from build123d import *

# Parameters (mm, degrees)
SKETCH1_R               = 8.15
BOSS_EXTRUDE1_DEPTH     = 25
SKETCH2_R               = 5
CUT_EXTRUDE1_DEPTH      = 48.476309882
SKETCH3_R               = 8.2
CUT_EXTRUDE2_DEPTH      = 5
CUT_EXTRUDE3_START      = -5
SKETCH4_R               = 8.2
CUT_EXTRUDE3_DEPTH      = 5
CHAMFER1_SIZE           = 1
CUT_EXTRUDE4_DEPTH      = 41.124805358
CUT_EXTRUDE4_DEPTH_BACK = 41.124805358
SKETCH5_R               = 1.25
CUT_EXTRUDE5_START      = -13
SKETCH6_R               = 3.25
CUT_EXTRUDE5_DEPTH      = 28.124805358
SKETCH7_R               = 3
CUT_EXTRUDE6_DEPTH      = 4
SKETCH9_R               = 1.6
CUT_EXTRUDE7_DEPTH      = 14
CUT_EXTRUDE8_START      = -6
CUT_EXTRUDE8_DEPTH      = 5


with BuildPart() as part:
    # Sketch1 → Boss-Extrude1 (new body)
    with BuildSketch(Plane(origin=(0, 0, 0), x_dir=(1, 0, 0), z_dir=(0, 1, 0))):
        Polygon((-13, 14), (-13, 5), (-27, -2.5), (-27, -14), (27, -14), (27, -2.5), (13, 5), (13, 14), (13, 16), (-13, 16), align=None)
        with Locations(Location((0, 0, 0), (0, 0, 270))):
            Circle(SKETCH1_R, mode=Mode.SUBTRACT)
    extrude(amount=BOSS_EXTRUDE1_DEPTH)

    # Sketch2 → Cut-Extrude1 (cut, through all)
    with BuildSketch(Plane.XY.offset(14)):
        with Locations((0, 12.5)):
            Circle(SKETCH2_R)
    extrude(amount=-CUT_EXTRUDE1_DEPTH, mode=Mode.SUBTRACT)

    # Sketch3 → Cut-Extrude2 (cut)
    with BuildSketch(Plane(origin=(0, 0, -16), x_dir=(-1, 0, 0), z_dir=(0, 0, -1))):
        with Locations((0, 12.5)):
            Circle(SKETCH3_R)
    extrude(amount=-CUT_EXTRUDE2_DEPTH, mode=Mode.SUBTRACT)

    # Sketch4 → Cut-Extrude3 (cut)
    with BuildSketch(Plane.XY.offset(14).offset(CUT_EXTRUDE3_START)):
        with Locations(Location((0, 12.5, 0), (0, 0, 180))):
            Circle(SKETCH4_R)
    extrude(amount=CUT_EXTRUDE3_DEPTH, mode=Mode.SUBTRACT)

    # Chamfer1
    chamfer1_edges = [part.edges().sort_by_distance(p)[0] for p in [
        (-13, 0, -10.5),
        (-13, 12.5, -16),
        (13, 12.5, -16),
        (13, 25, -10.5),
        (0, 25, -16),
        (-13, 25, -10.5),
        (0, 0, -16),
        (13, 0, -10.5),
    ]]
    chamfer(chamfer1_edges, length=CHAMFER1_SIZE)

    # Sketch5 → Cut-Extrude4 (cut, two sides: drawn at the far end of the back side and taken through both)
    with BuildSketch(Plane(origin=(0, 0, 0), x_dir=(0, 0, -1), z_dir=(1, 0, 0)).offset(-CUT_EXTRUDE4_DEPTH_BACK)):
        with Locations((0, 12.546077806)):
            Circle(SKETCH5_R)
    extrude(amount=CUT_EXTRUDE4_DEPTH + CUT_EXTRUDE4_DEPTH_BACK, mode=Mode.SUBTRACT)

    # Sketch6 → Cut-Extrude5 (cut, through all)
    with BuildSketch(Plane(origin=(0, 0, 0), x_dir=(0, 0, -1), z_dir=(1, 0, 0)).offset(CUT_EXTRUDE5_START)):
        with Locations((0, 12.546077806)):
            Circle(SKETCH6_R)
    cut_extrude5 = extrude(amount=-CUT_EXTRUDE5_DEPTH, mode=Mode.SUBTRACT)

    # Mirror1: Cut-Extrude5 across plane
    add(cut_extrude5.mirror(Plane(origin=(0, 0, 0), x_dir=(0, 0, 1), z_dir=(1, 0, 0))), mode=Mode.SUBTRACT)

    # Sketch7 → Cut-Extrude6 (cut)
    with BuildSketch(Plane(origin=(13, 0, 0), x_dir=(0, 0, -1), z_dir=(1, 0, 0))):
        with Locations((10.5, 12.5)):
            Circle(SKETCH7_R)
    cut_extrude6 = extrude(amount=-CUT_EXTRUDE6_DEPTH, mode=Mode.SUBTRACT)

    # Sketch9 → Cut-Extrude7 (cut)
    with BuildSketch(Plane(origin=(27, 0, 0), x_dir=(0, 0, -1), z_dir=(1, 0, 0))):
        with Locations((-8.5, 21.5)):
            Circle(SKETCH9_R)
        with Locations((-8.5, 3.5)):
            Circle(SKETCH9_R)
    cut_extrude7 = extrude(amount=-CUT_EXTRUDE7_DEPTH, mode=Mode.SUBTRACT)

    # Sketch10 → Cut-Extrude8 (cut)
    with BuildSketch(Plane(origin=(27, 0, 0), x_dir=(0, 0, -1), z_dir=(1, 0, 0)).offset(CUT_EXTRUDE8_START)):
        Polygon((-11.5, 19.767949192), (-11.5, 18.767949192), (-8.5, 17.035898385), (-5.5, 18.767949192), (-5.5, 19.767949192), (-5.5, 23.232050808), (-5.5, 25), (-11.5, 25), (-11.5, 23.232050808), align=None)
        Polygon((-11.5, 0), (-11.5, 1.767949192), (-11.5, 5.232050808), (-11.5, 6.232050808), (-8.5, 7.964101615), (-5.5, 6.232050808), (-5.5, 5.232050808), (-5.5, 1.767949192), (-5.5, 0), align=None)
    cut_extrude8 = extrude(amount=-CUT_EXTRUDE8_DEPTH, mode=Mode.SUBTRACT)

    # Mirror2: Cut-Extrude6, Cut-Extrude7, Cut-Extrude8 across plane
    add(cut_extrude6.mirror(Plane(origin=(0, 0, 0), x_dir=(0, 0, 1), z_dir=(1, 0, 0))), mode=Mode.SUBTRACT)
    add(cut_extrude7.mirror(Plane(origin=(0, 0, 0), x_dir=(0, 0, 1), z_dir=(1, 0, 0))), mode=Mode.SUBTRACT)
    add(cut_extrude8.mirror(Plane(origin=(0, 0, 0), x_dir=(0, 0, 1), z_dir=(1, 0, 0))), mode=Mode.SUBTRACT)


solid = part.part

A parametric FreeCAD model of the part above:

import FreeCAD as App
import Part
import Sketcher
from FreeCAD import Vector
Q = App.Units.Quantity


def edges_at(feature, points):
    """Names of the edges that pass closest to the given points."""
    edges = feature.Shape.Edges
    near = lambda p: min(range(len(edges)), key=lambda i: edges[i].distToShape(Part.Vertex(*p))[0])
    return sorted({f"Edge{near(p) + 1}" for p in points})

doc = App.newDocument("Part")
body = doc.addObject("PartDesign::Body", "Body")

sketch1 = body.newObject("Sketcher::SketchObject", "Sketch")
sketch1.AttachmentSupport = (doc.getObject("XZ_Plane"), [""])
sketch1.MapMode = "FlatFace"
sketch1.addGeometry(Part.LineSegment(Vector(-13, -5, 0), Vector(-27, 2, 0)), False)
sketch1.addGeometry(Part.LineSegment(Vector(-27, 2, 0), Vector(-27, 14, 0)), False)
sketch1.addGeometry(Part.LineSegment(Vector(-27, 14, 0), Vector(27, 14, 0)), False)
sketch1.addGeometry(Part.LineSegment(Vector(27, 14, 0), Vector(27, 2, 0)), False)
sketch1.addGeometry(Part.LineSegment(Vector(27, 2, 0), Vector(13, -5, 0)), False)
sketch1.addGeometry(Part.LineSegment(Vector(13, -5, 0), Vector(13, -16, 0)), False)
sketch1.addGeometry(Part.LineSegment(Vector(13, -16, 0), Vector(-13, -16, 0)), False)
sketch1.addGeometry(Part.LineSegment(Vector(-13, -16, 0), Vector(-13, -5, 0)), False)
sketch1.addGeometry(Part.Circle(Vector(0, 0, 0), Vector(0, 0, 1), 8), False)
sketch1.addConstraint(Sketcher.Constraint("Coincident", 0, 2, 1, 1))
sketch1.addConstraint(Sketcher.Constraint("Coincident", 1, 2, 2, 1))
sketch1.addConstraint(Sketcher.Constraint("Coincident", 2, 2, 3, 1))
sketch1.addConstraint(Sketcher.Constraint("Coincident", 3, 2, 4, 1))
sketch1.addConstraint(Sketcher.Constraint("Coincident", 4, 2, 5, 1))
sketch1.addConstraint(Sketcher.Constraint("Coincident", 5, 2, 6, 1))
sketch1.addConstraint(Sketcher.Constraint("Coincident", 6, 2, 7, 1))
sketch1.addConstraint(Sketcher.Constraint("Coincident", 7, 2, 0, 1))
sketch1.addConstraint(Sketcher.Constraint("Vertical", 1))
sketch1.addConstraint(Sketcher.Constraint("Horizontal", 2))
sketch1.addConstraint(Sketcher.Constraint("Vertical", 3))
sketch1.addConstraint(Sketcher.Constraint("Vertical", 5))
sketch1.addConstraint(Sketcher.Constraint("Horizontal", 6))
sketch1.addConstraint(Sketcher.Constraint("Vertical", 7))
sketch1.addConstraint(Sketcher.Constraint("Coincident", 8, 3, -1, 1))
sketch1.addConstraint(Sketcher.Constraint("Symmetric", 0, 2, 3, 2, -2))
sketch1.addConstraint(Sketcher.Constraint("Symmetric", 4, 2, 7, 2, -2))
sketch1.addConstraint(Sketcher.Constraint("Diameter", 8, 16.3))
sketch1.addConstraint(Sketcher.Constraint("DistanceX", 2, 1, 2, 2, 54.0))
sketch1.addConstraint(Sketcher.Constraint("DistanceX", 6, 2, 6, 1, 26.0))
sketch1.addConstraint(Sketcher.Constraint("DistanceY", 5, 2, 5, 1, 11.0))
sketch1.addConstraint(Sketcher.Constraint("DistanceY", 1, 1, 1, 2, 11.5))
sketch1.addConstraint(Sketcher.Constraint("DistanceY", -1, 1, 1, 2, 14.0))
sketch1.addConstraint(Sketcher.Constraint("DistanceY", 4, 2, -1, 1, 5.0))
pad1 = body.newObject("PartDesign::Pad", "Pad")
pad1.Profile = sketch1
pad1.Length = 25
pad1.Reversed = True

sketch2 = body.newObject("Sketcher::SketchObject", "Sketch001")
sketch2.AttachmentSupport = (doc.getObject("XY_Plane"), [""])
sketch2.MapMode = "FlatFace"
sketch2.AttachmentOffset = App.Placement(Vector(0, 0, 14), App.Rotation())
sketch2.addGeometry(Part.Circle(Vector(0, 12, 0), Vector(0, 0, 1), 5), False)
sketch2.addConstraint(Sketcher.Constraint("PointOnObject", 0, 3, -2))
sketch2.addConstraint(Sketcher.Constraint("Diameter", 0, 10.0))
sketch2.addConstraint(Sketcher.Constraint("DistanceY", -1, 1, 0, 3, 12.5))
pocket1 = body.newObject("PartDesign::Pocket", "Pocket")
pocket1.Profile = sketch2
pocket1.Type = "ThroughAll"

sketch3 = body.newObject("Sketcher::SketchObject", "Sketch002")
sketch3.AttachmentSupport = (doc.getObject("XY_Plane"), [""])
sketch3.MapMode = "FlatFace"
sketch3.AttachmentOffset = App.Placement(Vector(0, 0, -16), App.Rotation())
sketch3.addGeometry(Part.Circle(Vector(0, 12, 0), Vector(0, 0, 1), 8), False)
sketch3.addConstraint(Sketcher.Constraint("PointOnObject", 0, 3, -2))
sketch3.addConstraint(Sketcher.Constraint("Diameter", 0, 16.4))
sketch3.addConstraint(Sketcher.Constraint("DistanceY", -1, 1, 0, 3, 12.5))
pocket2 = body.newObject("PartDesign::Pocket", "Pocket001")
pocket2.Profile = sketch3
pocket2.Length = 5
pocket2.Reversed = True

sketch4 = body.newObject("Sketcher::SketchObject", "Sketch003")
sketch4.AttachmentSupport = (doc.getObject("XY_Plane"), [""])
sketch4.MapMode = "FlatFace"
sketch4.AttachmentOffset = App.Placement(Vector(0, 0, 9), App.Rotation())
sketch4.addGeometry(Part.Circle(Vector(0, 12, 0), Vector(0, 0, 1), 8), False)
sketch4.addConstraint(Sketcher.Constraint("PointOnObject", 0, 3, -2))
sketch4.addConstraint(Sketcher.Constraint("Diameter", 0, 16.4))
sketch4.addConstraint(Sketcher.Constraint("DistanceY", -1, 1, 0, 3, 12.5))
pocket3 = body.newObject("PartDesign::Pocket", "Pocket002")
pocket3.Profile = sketch4
pocket3.Length = 5
pocket3.Reversed = True
doc.recompute()

chamfer = body.newObject("PartDesign::Chamfer", "Chamfer")
chamfer.Base = (pocket3, edges_at(pocket3, [
    (-13, 0, -10.5),
    (-13, 12.5, -16),
    (13, 12.5, -16),
    (13, 25, -10.5),
    (0, 25, -16),
    (-13, 25, -10.5),
    (0, 0, -16),
    (13, 0, -10.5),
]))
chamfer.Size = 1

sketch5 = body.newObject("Sketcher::SketchObject", "Sketch004")
sketch5.AttachmentSupport = (doc.getObject("YZ_Plane"), [""])
sketch5.MapMode = "FlatFace"
sketch5.addGeometry(Part.Circle(Vector(12.5, 0, 0), Vector(0, 0, 1), 1.2), False)
sketch5.addConstraint(Sketcher.Constraint("PointOnObject", 0, 3, -1))
sketch5.addConstraint(Sketcher.Constraint("Diameter", 0, 2.5))
sketch5.addConstraint(Sketcher.Constraint("DistanceX", -1, 1, 0, 3, 12.546078))
pocket4 = body.newObject("PartDesign::Pocket", "Pocket003")
pocket4.Profile = sketch5
pocket4.Type = "ThroughAll"
pocket4.Midplane = True

sketch6 = body.newObject("Sketcher::SketchObject", "Sketch005")
sketch6.AttachmentSupport = (doc.getObject("YZ_Plane"), [""])
sketch6.MapMode = "FlatFace"
sketch6.AttachmentOffset = App.Placement(Vector(0, 0, -13), App.Rotation())
sketch6.addGeometry(Part.Circle(Vector(12.5, 0, 0), Vector(0, 0, 1), 3.2), False)
sketch6.addConstraint(Sketcher.Constraint("PointOnObject", 0, 3, -1))
sketch6.addConstraint(Sketcher.Constraint("Diameter", 0, 6.5))
sketch6.addConstraint(Sketcher.Constraint("DistanceX", -1, 1, 0, 3, 12.546078))
pocket5 = body.newObject("PartDesign::Pocket", "Pocket004")
pocket5.Profile = sketch6
pocket5.Type = "ThroughAll"
doc.recompute()

mirrored = body.newObject("PartDesign::Mirrored", "Mirrored")
mirrored.Originals = [pocket5]
mirrored.MirrorPlane = (doc.getObject("YZ_Plane"), [""])
body.Tip = mirrored

sketch7 = body.newObject("Sketcher::SketchObject", "Sketch006")
sketch7.AttachmentSupport = (doc.getObject("YZ_Plane"), [""])
sketch7.MapMode = "FlatFace"
sketch7.AttachmentOffset = App.Placement(Vector(0, 0, 13), App.Rotation())
sketch7.addGeometry(Part.Circle(Vector(12.5, -10.5, 0), Vector(0, 0, 1), 3), False)
sketch7.addConstraint(Sketcher.Constraint("Diameter", 0, 6.0))
sketch7.addConstraint(Sketcher.Constraint("DistanceX", -1, 1, 0, 3, 12.5))
sketch7.addConstraint(Sketcher.Constraint("DistanceY", 0, 3, -1, 1, 10.5))
pocket6 = body.newObject("PartDesign::Pocket", "Pocket005")
pocket6.Profile = sketch7
pocket6.Length = 4

sketch8 = body.newObject("Sketcher::SketchObject", "Sketch007")
sketch8.AttachmentSupport = (doc.getObject("YZ_Plane"), [""])
sketch8.MapMode = "FlatFace"
sketch8.AttachmentOffset = App.Placement(Vector(0, 0, 27), App.Rotation())
sketch8.addGeometry(Part.Circle(Vector(21.5, 8.5, 0), Vector(0, 0, 1), 1.6), False)
sketch8.addGeometry(Part.Circle(Vector(3.5, 8.5, 0), Vector(0, 0, 1), 1.6), False)
sketch8.addConstraint(Sketcher.Constraint("Equal", 0, 1))
sketch8.addConstraint(Sketcher.Constraint("Horizontal", 0, 3, 1, 3))
sketch8.addConstraint(Sketcher.Constraint("Diameter", 0, 3.2))
sketch8.addConstraint(Sketcher.Constraint("DistanceX", 1, 3, 0, 3, 18.0))
sketch8.addConstraint(Sketcher.Constraint("DistanceX", -1, 1, 0, 3, 21.5))
sketch8.addConstraint(Sketcher.Constraint("DistanceY", -1, 1, 0, 3, 8.5))
pocket7 = body.newObject("PartDesign::Pocket", "Pocket006")
pocket7.Profile = sketch8
pocket7.Length = 14

sketch9 = body.newObject("Sketcher::SketchObject", "Sketch008")
sketch9.AttachmentSupport = (doc.getObject("YZ_Plane"), [""])
sketch9.MapMode = "FlatFace"
sketch9.AttachmentOffset = App.Placement(Vector(0, 0, 21), App.Rotation())
sketch9.addGeometry(Part.LineSegment(Vector(18.8, 11.5, 0), Vector(17, 8.5, 0)), False)
sketch9.addGeometry(Part.LineSegment(Vector(17, 8.5, 0), Vector(18.8, 5.5, 0)), False)
sketch9.addGeometry(Part.LineSegment(Vector(18.8, 5.5, 0), Vector(25, 5.5, 0)), False)
sketch9.addGeometry(Part.LineSegment(Vector(25, 5.5, 0), Vector(25, 11.5, 0)), False)
sketch9.addGeometry(Part.LineSegment(Vector(25, 11.5, 0), Vector(18.8, 11.5, 0)), False)
sketch9.addGeometry(Part.LineSegment(Vector(6.2, 11.5, 0), Vector(0, 11.5, 0)), False)
sketch9.addGeometry(Part.LineSegment(Vector(0, 11.5, 0), Vector(0, 5.5, 0)), False)
sketch9.addGeometry(Part.LineSegment(Vector(0, 5.5, 0), Vector(6.2, 5.5, 0)), False)
sketch9.addGeometry(Part.LineSegment(Vector(6.2, 5.5, 0), Vector(8, 8.5, 0)), False)
sketch9.addGeometry(Part.LineSegment(Vector(8, 8.5, 0), Vector(6.2, 11.5, 0)), False)
sketch9.addConstraint(Sketcher.Constraint("Coincident", 0, 2, 1, 1))
sketch9.addConstraint(Sketcher.Constraint("Coincident", 1, 2, 2, 1))
sketch9.addConstraint(Sketcher.Constraint("Coincident", 2, 2, 3, 1))
sketch9.addConstraint(Sketcher.Constraint("Coincident", 3, 2, 4, 1))
sketch9.addConstraint(Sketcher.Constraint("Coincident", 4, 2, 0, 1))
sketch9.addConstraint(Sketcher.Constraint("Coincident", 5, 2, 6, 1))
sketch9.addConstraint(Sketcher.Constraint("Coincident", 6, 2, 7, 1))
sketch9.addConstraint(Sketcher.Constraint("Coincident", 7, 2, 8, 1))
sketch9.addConstraint(Sketcher.Constraint("Coincident", 8, 2, 9, 1))
sketch9.addConstraint(Sketcher.Constraint("Coincident", 9, 2, 5, 1))
sketch9.addConstraint(Sketcher.Constraint("Horizontal", 2))
sketch9.addConstraint(Sketcher.Constraint("Vertical", 3))
sketch9.addConstraint(Sketcher.Constraint("Horizontal", 4))
sketch9.addConstraint(Sketcher.Constraint("Horizontal", 5))
sketch9.addConstraint(Sketcher.Constraint("Vertical", 6))
sketch9.addConstraint(Sketcher.Constraint("Horizontal", 7))
sketch9.addConstraint(Sketcher.Constraint("PointOnObject", 5, 2, -2))
sketch9.addConstraint(Sketcher.Constraint("Parallel", 0, 8))
sketch9.addConstraint(Sketcher.Constraint("Parallel", 1, 9))
sketch9.addConstraint(Sketcher.Constraint("Horizontal", 4, 2, 5, 2))
sketch9.addConstraint(Sketcher.Constraint("Horizontal", 2, 2, 6, 2))
sketch9.addConstraint(Sketcher.Constraint("Horizontal", 0, 2, 8, 2))
sketch9.addConstraint(Sketcher.Constraint("Vertical", 1, 2, 4, 2))
sketch9.addConstraint(Sketcher.Constraint("Vertical", 7, 2, 9, 2))
sketch9.addConstraint(Sketcher.Constraint("Equal", 4, 5))
sketch9.addConstraint(Sketcher.Constraint("DistanceY", 3, 1, 3, 2, 6.0))
sketch9.addConstraint(Sketcher.Constraint("Angle", 0, Q("-120 deg")))
sketch9.addConstraint(Sketcher.Constraint("DistanceX", -1, 1, 2, 2, 25.0))
sketch9.addConstraint(Sketcher.Constraint("DistanceY", -1, 1, 0, 2, 8.5))
sketch9.addConstraint(Sketcher.Constraint("DistanceX", 2, 1, 2, 2, 6.232051))
pocket8 = body.newObject("PartDesign::Pocket", "Pocket007")
pocket8.Profile = sketch9
pocket8.Length = 5
doc.recompute()

mirrored2 = body.newObject("PartDesign::Mirrored", "Mirrored001")
mirrored2.Originals = [pocket6, pocket7, pocket8]
mirrored2.MirrorPlane = (doc.getObject("YZ_Plane"), [""])
body.Tip = mirrored2

doc.recompute()
